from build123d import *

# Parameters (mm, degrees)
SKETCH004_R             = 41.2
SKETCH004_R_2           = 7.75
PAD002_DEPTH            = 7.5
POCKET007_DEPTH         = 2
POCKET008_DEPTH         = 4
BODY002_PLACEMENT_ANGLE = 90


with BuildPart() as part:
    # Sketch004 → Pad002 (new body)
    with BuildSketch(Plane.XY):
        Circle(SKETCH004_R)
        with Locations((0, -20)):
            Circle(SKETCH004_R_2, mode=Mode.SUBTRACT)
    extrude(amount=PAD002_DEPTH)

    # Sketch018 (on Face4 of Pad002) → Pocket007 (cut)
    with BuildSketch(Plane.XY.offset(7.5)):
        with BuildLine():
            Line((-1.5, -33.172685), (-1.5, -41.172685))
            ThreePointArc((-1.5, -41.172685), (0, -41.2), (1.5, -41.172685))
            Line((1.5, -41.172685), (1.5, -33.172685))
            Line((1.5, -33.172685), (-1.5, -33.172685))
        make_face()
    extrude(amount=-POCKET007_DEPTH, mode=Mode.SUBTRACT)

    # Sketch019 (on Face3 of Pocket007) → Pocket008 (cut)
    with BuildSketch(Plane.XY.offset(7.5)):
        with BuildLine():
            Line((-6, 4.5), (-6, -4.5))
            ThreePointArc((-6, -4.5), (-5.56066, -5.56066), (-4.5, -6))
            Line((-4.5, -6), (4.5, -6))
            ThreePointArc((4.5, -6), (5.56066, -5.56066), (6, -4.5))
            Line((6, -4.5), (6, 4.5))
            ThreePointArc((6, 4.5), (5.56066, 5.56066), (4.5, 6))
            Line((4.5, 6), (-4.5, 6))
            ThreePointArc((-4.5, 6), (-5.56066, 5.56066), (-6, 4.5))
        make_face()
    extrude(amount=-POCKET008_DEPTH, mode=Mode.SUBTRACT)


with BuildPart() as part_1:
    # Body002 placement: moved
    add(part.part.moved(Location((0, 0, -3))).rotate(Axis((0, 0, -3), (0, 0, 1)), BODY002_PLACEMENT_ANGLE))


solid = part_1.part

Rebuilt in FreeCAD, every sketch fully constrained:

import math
import FreeCAD as App
import Part
import Sketcher

V = App.Vector

doc = App.newDocument("Part")
body = doc.addObject("PartDesign::Body", "Body")

sketch1 = body.newObject("Sketcher::SketchObject", "Sketch")
sketch1.AttachmentSupport = (doc.getObject("XY_Plane"), [""])
sketch1.MapMode = "FlatFace"
sketch1.addGeometry(Part.Circle(V(0, 0, 0), V(0, 0, 1), 41), False)
sketch1.addGeometry(Part.Circle(V(0, -20, 0), V(0, 0, 1), 8), False)
sketch1.addConstraint(Sketcher.Constraint("Coincident", 0, 3, -1, 1))
sketch1.addConstraint(Sketcher.Constraint("PointOnObject", 1, 3, -2))
sketch1.addConstraint(Sketcher.Constraint("Diameter", 0, 82.4))
sketch1.addConstraint(Sketcher.Constraint("Diameter", 1, 15.5))
sketch1.addConstraint(Sketcher.Constraint("DistanceY", 1, 3, -1, 1, 20.0))
pad1 = body.newObject("PartDesign::Pad", "Pad")
pad1.Profile = sketch1
pad1.Length = 7.5

sketch2 = body.newObject("Sketcher::SketchObject", "Sketch001")
sketch2.AttachmentSupport = (doc.getObject("XY_Plane"), [""])
sketch2.MapMode = "FlatFace"
sketch2.AttachmentOffset = App.Placement(V(0, 0, 7.5), App.Rotation())
sketch2.addGeometry(Part.LineSegment(V(-1.5, -33.2, 0), V(-1.5, -41.2, 0)), False)
sketch2.addGeometry(Part.ArcOfCircle(Part.Circle(V(0, 0, 0), V(0, 0, 1), 41.2), math.radians(-92.09), math.radians(-87.91)), False)
sketch2.addGeometry(Part.LineSegment(V(1.5, -41.2, 0), V(1.5, -33.2, 0)), False)
sketch2.addGeometry(Part.LineSegment(V(1.5, -33.2, 0), V(-1.5, -33.2, 0)), False)
sketch2.addConstraint(Sketcher.Constraint("Coincident", 0, 2, 1, 1))
sketch2.addConstraint(Sketcher.Constraint("Coincident", 1, 2, 2, 1))
sketch2.addConstraint(Sketcher.Constraint("Coincident", 2, 2, 3, 1))
sketch2.addConstraint(Sketcher.Constraint("Coincident", 3, 2, 0, 1))
sketch2.addConstraint(Sketcher.Constraint("Vertical", 0))
sketch2.addConstraint(Sketcher.Constraint("Vertical", 2))
sketch2.addConstraint(Sketcher.Constraint("Horizontal", 3))
sketch2.addConstraint(Sketcher.Constraint("Symmetric", 0, 2, 1, 2, -2))
sketch2.addConstraint(Sketcher.Constraint("DistanceX", 3, 2, 3, 1, 3.0))
sketch2.addConstraint(Sketcher.Constraint("DistanceY", 0, 2, 0, 1, 8.0))
sketch2.addConstraint(Sketcher.Constraint("Radius", 1, 41.199819))
sketch2.addConstraint(Sketcher.Constraint("DistanceY", 1, 3, -1, 1, 0.000181))
pocket1 = body.newObject("PartDesign::Pocket", "Pocket")
pocket1.Profile = sketch2
pocket1.Length = 2

sketch3 = body.newObject("Sketcher::SketchObject", "Sketch002")
sketch3.AttachmentSupport = (doc.getObject("XY_Plane"), [""])
sketch3.MapMode = "FlatFace"
sketch3.AttachmentOffset = App.Placement(V(0, 0, 7.5), App.Rotation())
sketch3.addGeometry(Part.LineSegment(V(-6, 4.5, 0), V(-6, -4.5, 0)), False)
sketch3.addGeometry(Part.ArcOfCircle(Part.Circle(V(-4.5, -4.5, 0), V(0, 0, 1), 1.5), math.radians(-180), math.radians(-90)), False)
sketch3.addGeometry(Part.LineSegment(V(-4.5, -6, 0), V(4.5, -6, 0)), False)
sketch3.addGeometry(Part.ArcOfCircle(Part.Circle(V(4.5, -4.5, 0), V(0, 0, 1), 1.5), math.radians(-90), math.radians(0)), False)
sketch3.addGeometry(Part.LineSegment(V(6, -4.5, 0), V(6, 4.5, 0)), False)
sketch3.addGeometry(Part.ArcOfCircle(Part.Circle(V(4.5, 4.5, 0), V(0, 0, 1), 1.5), math.radians(0), math.radians(90)), False)
sketch3.addGeometry(Part.LineSegment(V(4.5, 6, 0), V(-4.5, 6, 0)), False)
sketch3.addGeometry(Part.ArcOfCircle(Part.Circle(V(-4.5, 4.5, 0), V(0, 0, 1), 1.5), math.radians(90), math.radians(180)), False)
sketch3.addConstraint(Sketcher.Constraint("Tangent", 0, 2, 1, 1))
sketch3.addConstraint(Sketcher.Constraint("Tangent", 1, 2, 2, 1))
sketch3.addConstraint(Sketcher.Constraint("Tangent", 2, 2, 3, 1))
sketch3.addConstraint(Sketcher.Constraint("Tangent", 3, 2, 4, 1))
sketch3.addConstraint(Sketcher.Constraint("Tangent", 4, 2, 5, 1))
sketch3.addConstraint(Sketcher.Constraint("Tangent", 5, 2, 6, 1))
sketch3.addConstraint(Sketcher.Constraint("Tangent", 6, 2, 7, 1))
sketch3.addConstraint(Sketcher.Constraint("Tangent", 7, 2, 0, 1))
sketch3.addConstraint(Sketcher.Constraint("Vertical", 0))
sketch3.addConstraint(Sketcher.Constraint("Horizontal", 2))
sketch3.addConstraint(Sketcher.Constraint("Vertical", 4))
sketch3.addConstraint(Sketcher.Constraint("Horizontal", 6))
sketch3.addConstraint(Sketcher.Constraint("Equal", 1, 3))
sketch3.addConstraint(Sketcher.Constraint("Equal", 3, 5))
sketch3.addConstraint(Sketcher.Constraint("Equal", 5, 7))
sketch3.addConstraint(Sketcher.Constraint("Symmetric", 1, 3, 5, 3, -1, 1))
sketch3.addConstraint(Sketcher.Constraint("Equal", 6, 0))
sketch3.addConstraint(Sketcher.Constraint("Radius", 1, 1.500001))
sketch3.addConstraint(Sketcher.Constraint("DistanceX", 2, 1, 2, 2, 9.0))
pocket2 = body.newObject("PartDesign::Pocket", "Pocket001")
pocket2.Profile = sketch3
pocket2.Length = 4
body2 = doc.addObject("PartDesign::Body", "Body001")
doc.recompute()

body.Placement = App.Placement(V(0, 0, -3), App.Rotation(V(0, 0, 1), 90))
boolean = body2.newObject("PartDesign::Boolean", "Boolean")
boolean.Type = "Fuse"
boolean.addObjects([body])

doc.recompute()
